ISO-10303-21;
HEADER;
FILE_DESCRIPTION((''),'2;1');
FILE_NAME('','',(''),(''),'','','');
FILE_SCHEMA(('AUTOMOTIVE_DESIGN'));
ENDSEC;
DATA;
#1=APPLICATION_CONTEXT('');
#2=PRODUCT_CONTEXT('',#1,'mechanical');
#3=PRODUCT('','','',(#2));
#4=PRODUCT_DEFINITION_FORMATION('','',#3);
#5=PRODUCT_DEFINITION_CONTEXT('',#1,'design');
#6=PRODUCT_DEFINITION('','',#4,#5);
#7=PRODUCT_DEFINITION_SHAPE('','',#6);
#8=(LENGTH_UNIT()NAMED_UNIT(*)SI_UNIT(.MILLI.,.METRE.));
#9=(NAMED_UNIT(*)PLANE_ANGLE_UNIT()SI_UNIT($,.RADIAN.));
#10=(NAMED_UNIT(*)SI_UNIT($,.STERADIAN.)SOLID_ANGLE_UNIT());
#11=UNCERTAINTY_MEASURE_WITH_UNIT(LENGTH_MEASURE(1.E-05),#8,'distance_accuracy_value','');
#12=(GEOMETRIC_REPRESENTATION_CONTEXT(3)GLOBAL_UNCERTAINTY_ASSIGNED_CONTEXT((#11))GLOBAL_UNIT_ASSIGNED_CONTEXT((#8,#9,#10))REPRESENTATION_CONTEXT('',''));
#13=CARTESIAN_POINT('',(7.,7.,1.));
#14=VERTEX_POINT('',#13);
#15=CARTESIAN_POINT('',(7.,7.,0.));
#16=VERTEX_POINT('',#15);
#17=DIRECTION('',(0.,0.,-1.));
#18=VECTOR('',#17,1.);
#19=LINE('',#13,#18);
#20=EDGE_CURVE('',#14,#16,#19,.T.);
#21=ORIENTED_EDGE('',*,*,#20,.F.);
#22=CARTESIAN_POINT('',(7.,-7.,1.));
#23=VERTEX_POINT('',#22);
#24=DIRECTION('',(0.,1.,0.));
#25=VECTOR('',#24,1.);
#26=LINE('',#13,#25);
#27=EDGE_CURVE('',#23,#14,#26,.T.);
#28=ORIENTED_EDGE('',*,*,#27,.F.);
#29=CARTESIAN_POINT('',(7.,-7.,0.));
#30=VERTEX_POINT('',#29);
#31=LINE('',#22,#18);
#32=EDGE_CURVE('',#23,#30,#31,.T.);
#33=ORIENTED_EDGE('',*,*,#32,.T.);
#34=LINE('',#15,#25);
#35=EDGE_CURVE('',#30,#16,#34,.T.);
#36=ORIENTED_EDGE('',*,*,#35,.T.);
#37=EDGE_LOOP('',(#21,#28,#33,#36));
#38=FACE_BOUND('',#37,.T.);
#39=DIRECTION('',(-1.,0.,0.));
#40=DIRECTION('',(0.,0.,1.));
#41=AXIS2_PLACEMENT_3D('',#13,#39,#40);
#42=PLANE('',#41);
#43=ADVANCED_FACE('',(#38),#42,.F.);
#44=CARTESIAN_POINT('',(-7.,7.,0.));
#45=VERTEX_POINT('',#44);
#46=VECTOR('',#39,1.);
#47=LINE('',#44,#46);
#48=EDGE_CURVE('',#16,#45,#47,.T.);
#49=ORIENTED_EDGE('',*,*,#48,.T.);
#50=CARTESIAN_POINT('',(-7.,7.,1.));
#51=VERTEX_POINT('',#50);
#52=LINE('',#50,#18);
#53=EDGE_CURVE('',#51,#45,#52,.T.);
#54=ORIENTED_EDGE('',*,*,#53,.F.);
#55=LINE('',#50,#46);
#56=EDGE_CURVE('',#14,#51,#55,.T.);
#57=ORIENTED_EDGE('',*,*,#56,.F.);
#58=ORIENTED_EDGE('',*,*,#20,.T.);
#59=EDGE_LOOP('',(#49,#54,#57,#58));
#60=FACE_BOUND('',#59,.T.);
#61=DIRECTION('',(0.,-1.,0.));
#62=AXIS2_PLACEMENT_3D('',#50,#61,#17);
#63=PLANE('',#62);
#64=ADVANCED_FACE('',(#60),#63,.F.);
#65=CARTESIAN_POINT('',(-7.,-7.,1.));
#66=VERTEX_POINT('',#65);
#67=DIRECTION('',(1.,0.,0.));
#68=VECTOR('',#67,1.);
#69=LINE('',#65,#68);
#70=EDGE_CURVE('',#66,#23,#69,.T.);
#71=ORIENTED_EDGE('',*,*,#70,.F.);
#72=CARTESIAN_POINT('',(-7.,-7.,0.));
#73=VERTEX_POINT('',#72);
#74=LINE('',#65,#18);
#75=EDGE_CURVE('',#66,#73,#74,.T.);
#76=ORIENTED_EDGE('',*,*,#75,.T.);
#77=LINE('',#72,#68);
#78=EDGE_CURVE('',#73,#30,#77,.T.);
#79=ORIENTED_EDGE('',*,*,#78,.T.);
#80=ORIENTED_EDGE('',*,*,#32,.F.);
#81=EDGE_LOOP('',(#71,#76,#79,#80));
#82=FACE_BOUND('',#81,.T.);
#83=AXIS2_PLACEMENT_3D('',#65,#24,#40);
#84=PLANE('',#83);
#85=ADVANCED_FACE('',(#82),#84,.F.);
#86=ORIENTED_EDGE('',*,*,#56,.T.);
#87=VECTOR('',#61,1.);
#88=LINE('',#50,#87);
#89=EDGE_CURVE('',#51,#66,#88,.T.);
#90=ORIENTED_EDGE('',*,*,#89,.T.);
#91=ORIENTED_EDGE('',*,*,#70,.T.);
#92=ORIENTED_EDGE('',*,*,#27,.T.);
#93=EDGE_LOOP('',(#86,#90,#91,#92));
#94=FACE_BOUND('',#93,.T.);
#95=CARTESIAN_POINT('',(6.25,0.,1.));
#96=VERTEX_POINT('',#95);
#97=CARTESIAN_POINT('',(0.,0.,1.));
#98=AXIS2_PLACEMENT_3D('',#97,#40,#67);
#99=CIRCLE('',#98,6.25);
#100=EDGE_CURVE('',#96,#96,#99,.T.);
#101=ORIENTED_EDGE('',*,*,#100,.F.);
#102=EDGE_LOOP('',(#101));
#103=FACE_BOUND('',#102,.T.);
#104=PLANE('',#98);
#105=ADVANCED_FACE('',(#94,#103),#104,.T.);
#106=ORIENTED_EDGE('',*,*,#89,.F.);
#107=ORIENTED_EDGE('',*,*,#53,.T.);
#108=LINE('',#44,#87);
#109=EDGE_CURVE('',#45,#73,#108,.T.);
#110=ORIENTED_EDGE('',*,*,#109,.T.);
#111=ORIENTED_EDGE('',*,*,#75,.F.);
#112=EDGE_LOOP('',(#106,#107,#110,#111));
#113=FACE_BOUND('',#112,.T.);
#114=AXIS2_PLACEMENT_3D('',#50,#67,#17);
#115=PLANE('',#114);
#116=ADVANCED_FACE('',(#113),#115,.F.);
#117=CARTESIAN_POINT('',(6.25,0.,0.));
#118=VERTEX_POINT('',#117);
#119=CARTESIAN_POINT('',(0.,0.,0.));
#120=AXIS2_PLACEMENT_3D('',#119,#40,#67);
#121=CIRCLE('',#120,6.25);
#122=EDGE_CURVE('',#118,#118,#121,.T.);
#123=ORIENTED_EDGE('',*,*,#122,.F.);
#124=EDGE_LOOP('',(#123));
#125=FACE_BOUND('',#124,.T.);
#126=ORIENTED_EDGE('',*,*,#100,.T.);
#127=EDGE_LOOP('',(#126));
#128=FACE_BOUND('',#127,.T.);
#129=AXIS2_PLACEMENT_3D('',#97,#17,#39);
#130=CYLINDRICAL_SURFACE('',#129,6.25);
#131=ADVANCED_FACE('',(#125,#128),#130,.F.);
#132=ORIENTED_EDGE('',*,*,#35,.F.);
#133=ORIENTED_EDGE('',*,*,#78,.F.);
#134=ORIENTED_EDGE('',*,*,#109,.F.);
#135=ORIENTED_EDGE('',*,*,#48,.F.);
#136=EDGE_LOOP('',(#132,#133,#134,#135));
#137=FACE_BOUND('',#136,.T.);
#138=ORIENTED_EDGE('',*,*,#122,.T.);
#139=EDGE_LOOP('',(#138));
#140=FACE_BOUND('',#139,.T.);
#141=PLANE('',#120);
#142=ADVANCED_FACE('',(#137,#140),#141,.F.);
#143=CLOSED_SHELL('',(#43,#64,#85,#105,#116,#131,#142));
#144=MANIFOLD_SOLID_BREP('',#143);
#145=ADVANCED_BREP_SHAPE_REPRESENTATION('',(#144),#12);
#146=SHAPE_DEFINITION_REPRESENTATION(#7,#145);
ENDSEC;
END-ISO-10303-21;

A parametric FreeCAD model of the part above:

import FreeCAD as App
import Part
import Sketcher


def add_polygon(sketch, points):
    """Adds a closed chain of lines whose ends are joined by coincident constraints."""
    first, n = sketch.GeometryCount, len(points)
    for a, b in zip(points, points[1:] + points[:1]):
        sketch.addGeometry(Part.LineSegment(App.Vector(*a, 0), App.Vector(*b, 0)), False)
    for i in range(n):
        sketch.addConstraint(Sketcher.Constraint("Coincident", first + i, 2, first + (i + 1) % n, 1))

doc = App.newDocument("Part")
body = doc.addObject("PartDesign::Body", "Body")

# Sketch on XY plane
sketch1 = doc.addObject("Sketcher::SketchObject", "Sketch")
body.addObject(sketch1)
sketch1.AttachmentSupport = (doc.XY_Plane, [""])
sketch1.MapMode = "FlatFace"
add_polygon(sketch1, [(-7, 7), (-7, -7), (7, -7), (7, 7)])  # lines 0-3
sketch1.addGeometry(Part.Circle(App.Vector(0, 0, 0), App.Vector(0, 0, 1), 6), False)  # 4
sketch1.addConstraint(Sketcher.Constraint("Vertical", 0))
sketch1.addConstraint(Sketcher.Constraint("Horizontal", 1))
sketch1.addConstraint(Sketcher.Constraint("Vertical", 2))
sketch1.addConstraint(Sketcher.Constraint("Horizontal", 3))
sketch1.addConstraint(Sketcher.Constraint("Coincident", 4, 3, -1, 1))
sketch1.addConstraint(Sketcher.Constraint("Symmetric", 0, 2, 2, 2, -1, 1))
sketch1.addConstraint(Sketcher.Constraint("Equal", 3, 0))
sketch1.addConstraint(Sketcher.Constraint("Diameter", 4, 12.5))
sketch1.addConstraint(Sketcher.Constraint("DistanceX", 1, 1, 1, 2, 14.0))
pad1 = doc.addObject("PartDesign::Pad", "Pad")
body.addObject(pad1)
pad1.Profile = sketch1
pad1.Length = 1

doc.recompute()
